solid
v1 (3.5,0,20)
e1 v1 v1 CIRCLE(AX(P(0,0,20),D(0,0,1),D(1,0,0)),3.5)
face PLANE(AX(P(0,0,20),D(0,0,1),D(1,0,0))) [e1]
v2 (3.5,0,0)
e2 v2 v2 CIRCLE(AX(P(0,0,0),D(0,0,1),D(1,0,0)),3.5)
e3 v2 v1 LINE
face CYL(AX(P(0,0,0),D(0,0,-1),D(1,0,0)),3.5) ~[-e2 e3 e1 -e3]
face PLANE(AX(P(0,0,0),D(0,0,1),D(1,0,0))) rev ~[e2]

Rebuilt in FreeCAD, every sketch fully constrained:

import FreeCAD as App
import Part
import Sketcher

doc = App.newDocument("Part")
body = doc.addObject("PartDesign::Body", "Body")

# Sketch on XY plane
sketch1 = body.newObject("Sketcher::SketchObject", "Sketch")
sketch1.AttachmentSupport = (doc.getObject("XY_Plane"), [""])
sketch1.MapMode = "FlatFace"
sketch1.addGeometry(Part.Circle(App.Vector(0, 0, 0), App.Vector(0, 0, 1), 3.5), False)
sketch1.addConstraint([
    Sketcher.Constraint("Coincident", 0, 3, -1, 1),
    Sketcher.Constraint("Diameter", 0, 7.0),
])
pad1 = body.newObject("PartDesign::Pad", "Pad")
pad1.Profile = sketch1
pad1.Length = 20

doc.recompute()
